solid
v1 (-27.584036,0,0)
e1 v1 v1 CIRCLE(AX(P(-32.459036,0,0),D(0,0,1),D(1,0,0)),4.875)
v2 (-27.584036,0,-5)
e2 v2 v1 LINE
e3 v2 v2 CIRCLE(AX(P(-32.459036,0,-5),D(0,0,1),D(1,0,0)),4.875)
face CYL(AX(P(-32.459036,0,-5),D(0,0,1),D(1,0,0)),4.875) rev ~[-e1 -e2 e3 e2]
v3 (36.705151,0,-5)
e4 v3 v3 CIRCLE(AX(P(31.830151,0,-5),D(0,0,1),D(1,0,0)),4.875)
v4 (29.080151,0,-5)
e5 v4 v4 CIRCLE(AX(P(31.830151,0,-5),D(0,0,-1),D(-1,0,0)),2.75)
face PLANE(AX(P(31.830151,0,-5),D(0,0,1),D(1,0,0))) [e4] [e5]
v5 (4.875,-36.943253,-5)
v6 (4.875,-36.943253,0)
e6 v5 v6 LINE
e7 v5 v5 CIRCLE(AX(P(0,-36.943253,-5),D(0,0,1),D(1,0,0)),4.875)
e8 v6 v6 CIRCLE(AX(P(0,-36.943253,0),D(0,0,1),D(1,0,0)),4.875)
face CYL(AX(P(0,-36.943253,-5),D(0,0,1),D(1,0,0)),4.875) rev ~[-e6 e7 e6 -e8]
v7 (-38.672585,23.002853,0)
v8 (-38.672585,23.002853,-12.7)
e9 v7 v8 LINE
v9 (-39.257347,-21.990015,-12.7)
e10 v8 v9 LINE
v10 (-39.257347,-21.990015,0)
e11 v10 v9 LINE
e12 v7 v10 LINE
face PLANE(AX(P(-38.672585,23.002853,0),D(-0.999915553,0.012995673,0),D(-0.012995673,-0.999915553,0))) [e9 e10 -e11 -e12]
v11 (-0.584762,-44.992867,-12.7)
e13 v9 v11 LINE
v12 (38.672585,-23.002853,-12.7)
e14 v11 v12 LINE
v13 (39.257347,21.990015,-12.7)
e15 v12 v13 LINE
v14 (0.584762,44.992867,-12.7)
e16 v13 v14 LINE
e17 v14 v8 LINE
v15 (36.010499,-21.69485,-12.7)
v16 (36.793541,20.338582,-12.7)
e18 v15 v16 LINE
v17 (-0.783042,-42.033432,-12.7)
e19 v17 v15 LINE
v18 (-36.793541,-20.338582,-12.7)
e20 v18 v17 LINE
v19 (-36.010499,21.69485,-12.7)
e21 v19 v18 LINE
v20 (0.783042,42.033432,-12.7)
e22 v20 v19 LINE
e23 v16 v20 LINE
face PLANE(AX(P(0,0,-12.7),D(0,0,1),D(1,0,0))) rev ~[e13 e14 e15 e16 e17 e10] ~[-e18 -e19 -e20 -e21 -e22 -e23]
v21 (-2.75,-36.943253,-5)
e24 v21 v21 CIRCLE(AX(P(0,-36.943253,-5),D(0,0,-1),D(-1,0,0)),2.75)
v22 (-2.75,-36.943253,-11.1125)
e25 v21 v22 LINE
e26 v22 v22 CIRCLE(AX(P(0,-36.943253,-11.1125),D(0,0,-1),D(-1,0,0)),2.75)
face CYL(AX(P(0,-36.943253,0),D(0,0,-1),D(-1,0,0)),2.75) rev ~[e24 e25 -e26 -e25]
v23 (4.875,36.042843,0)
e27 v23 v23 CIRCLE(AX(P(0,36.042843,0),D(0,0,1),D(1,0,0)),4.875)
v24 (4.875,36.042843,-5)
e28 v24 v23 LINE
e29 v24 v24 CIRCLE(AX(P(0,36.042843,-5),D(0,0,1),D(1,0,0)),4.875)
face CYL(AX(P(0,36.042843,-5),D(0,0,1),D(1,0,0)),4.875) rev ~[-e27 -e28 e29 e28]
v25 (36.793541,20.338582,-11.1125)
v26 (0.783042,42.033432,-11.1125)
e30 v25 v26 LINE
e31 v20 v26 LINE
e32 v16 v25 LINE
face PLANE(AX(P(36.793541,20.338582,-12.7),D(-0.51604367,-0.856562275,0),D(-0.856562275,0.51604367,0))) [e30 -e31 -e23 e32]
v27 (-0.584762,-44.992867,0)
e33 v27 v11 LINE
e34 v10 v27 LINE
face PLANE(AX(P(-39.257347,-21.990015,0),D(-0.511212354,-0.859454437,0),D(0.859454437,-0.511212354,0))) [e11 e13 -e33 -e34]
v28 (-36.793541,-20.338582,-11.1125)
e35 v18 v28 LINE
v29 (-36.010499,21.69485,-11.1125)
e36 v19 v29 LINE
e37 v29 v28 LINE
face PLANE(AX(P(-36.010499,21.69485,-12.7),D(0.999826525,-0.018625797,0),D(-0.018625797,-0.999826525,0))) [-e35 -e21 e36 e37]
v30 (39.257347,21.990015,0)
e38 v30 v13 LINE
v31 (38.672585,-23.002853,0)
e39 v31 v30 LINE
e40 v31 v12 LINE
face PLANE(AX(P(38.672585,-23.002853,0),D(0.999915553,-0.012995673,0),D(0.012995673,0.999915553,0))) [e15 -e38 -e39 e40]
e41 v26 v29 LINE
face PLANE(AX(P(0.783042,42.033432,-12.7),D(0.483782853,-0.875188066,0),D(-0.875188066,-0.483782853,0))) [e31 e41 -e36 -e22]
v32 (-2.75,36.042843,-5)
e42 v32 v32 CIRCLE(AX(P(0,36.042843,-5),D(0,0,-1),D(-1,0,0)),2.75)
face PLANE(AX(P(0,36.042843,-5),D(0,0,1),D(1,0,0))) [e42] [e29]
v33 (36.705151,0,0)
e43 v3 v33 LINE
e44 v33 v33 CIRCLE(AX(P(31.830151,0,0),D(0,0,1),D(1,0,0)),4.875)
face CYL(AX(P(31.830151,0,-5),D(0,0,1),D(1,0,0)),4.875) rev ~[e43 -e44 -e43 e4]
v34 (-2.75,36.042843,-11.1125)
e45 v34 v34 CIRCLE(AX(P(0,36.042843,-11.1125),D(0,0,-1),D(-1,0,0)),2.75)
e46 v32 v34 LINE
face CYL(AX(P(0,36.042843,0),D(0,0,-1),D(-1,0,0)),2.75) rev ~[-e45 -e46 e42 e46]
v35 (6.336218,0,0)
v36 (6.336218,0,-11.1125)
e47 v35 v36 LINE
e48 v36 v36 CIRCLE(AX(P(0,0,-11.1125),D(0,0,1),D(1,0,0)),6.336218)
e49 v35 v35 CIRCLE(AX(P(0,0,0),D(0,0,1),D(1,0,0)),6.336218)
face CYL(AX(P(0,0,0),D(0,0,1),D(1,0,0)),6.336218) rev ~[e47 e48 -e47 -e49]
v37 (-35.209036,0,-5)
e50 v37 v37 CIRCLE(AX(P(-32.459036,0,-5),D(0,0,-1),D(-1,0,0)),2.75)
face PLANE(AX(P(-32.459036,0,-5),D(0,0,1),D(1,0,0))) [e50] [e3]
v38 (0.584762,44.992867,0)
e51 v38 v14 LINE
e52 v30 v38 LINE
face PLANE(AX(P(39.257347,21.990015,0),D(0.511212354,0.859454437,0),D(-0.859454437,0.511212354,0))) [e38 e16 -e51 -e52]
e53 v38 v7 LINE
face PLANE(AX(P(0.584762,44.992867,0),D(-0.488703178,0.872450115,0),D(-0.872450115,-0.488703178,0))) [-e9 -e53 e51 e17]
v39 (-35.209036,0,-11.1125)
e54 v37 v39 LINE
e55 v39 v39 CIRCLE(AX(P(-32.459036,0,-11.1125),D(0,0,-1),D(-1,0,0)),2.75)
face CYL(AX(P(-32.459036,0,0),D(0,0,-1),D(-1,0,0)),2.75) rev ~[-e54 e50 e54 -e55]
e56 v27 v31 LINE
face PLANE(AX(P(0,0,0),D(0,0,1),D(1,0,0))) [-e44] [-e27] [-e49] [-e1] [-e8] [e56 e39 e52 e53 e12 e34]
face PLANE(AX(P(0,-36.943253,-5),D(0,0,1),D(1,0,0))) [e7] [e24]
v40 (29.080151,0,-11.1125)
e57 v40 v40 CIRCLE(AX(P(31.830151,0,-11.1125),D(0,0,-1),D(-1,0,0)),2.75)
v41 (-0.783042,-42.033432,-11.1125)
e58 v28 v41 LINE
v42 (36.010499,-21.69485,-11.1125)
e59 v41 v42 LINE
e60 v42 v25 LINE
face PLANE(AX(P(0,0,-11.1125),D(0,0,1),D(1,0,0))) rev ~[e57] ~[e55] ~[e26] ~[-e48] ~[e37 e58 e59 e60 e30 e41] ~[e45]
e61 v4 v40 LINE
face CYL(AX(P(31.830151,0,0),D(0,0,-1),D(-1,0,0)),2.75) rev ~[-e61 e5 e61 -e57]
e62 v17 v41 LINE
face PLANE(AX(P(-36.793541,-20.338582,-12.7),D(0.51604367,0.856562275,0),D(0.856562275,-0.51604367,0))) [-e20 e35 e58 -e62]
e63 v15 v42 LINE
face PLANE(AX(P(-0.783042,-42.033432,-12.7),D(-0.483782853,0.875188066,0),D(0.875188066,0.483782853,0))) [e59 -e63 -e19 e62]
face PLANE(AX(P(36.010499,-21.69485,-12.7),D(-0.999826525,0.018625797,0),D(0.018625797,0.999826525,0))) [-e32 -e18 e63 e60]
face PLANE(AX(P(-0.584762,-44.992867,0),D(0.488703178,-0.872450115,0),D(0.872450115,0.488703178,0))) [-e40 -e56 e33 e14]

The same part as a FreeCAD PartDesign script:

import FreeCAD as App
import Part
import Sketcher
Q = App.Units.Quantity


def add_polygon(sketch, points):
    """Adds a closed chain of lines whose ends are joined by coincident constraints."""
    first, n = sketch.GeometryCount, len(points)
    for a, b in zip(points, points[1:] + points[:1]):
        sketch.addGeometry(Part.LineSegment(App.Vector(*a, 0), App.Vector(*b, 0)), False)
    for i in range(n):
        sketch.addConstraint(Sketcher.Constraint("Coincident", first + i, 2, first + (i + 1) % n, 1))

doc = App.newDocument("Part")
body = doc.addObject("PartDesign::Body", "Body")

sketch1 = body.newObject("Sketcher::SketchObject", "Sketch")
sketch1.AttachmentSupport = (doc.getObject("XY_Plane"), [""])
sketch1.MapMode = "FlatFace"
add_polygon(sketch1, [(-0.584762, -44.992867), (38.672585, -23.002853), (39.257347, 21.990015), (0.584762, 44.992867), (-38.672585, 23.002853), (-39.257347, -21.990015)])
sketch1.addConstraint(Sketcher.Constraint("Symmetric", 0, 2, 3, 2, -1, 1))
sketch1.addConstraint(Sketcher.Constraint("Symmetric", 1, 2, 4, 2, -1, 1))
sketch1.addConstraint(Sketcher.Constraint("Symmetric", 2, 2, 5, 2, -1, 1))
sketch1.addConstraint(Sketcher.Constraint("Equal", 0, 1))
sketch1.addConstraint(Sketcher.Constraint("Equal", 1, 2))
sketch1.addConstraint(Sketcher.Constraint("DistanceY", 1, 2, 2, 2, 23.002852))
sketch1.addConstraint(Sketcher.Constraint("DistanceY", 0, 2, 2, 2, 67.99572))
sketch1.addConstraint(Sketcher.Constraint("DistanceY", 1, 2, 3, 2, 1.012838))
sketch1.addConstraint(Sketcher.Constraint("DistanceX", 3, 2, 0, 2, 77.34517))
pad1 = body.newObject("PartDesign::Pad", "Pad")
pad1.Profile = sketch1
pad1.Length = Q("0.5 in")
pad1.Reversed = True

sketch2 = body.newObject("Sketcher::SketchObject", "Sketch001")
sketch2.AttachmentSupport = (doc.getObject("XY_Plane"), [""])
sketch2.MapMode = "FlatFace"
sketch2.addGeometry(Part.Circle(App.Vector(0, -36.943253, 0), App.Vector(0, 0, 1), 2.75), False)
sketch2.addGeometry(Part.Circle(App.Vector(31.830151, 0, 0), App.Vector(0, 0, 1), 2.75), False)
sketch2.addGeometry(Part.Circle(App.Vector(0, 36.042843, 0), App.Vector(0, 0, 1), 2.75), False)
sketch2.addGeometry(Part.Circle(App.Vector(-32.459036, 0, 0), App.Vector(0, 0, 1), 2.75), False)
sketch2.addConstraint(Sketcher.Constraint("Equal", 0, 1))
sketch2.addConstraint(Sketcher.Constraint("Equal", 1, 2))
sketch2.addConstraint(Sketcher.Constraint("Equal", 2, 3))
sketch2.addConstraint(Sketcher.Constraint("PointOnObject", 0, 3, -2))
sketch2.addConstraint(Sketcher.Constraint("PointOnObject", 1, 3, -1))
sketch2.addConstraint(Sketcher.Constraint("PointOnObject", 2, 3, -2))
sketch2.addConstraint(Sketcher.Constraint("PointOnObject", 3, 3, -1))
sketch2.addConstraint(Sketcher.Constraint("Diameter", 0, 5.5))
sketch2.addConstraint(Sketcher.Constraint("DistanceX", -1, 1, 1, 3, 31.830151))
sketch2.addConstraint(Sketcher.Constraint("DistanceY", 0, 3, -1, 1, 36.943253))
sketch2.addConstraint(Sketcher.Constraint("DistanceY", -1, 1, 2, 3, 36.042843))
sketch2.addConstraint(Sketcher.Constraint("DistanceX", 3, 3, -1, 1, 32.459036))
doc.recompute()
hole = body.newObject("PartDesign::Hole", "Hole")
hole.Profile = sketch2
hole.ThreadType = "None"
hole.Diameter = 5.5
hole.DepthType = "ThroughAll"
hole.HoleCutType = "Counterbore"
hole.HoleCutDiameter = 9.75
hole.HoleCutDepth = 5

sketch3 = body.newObject("Sketcher::SketchObject", "Sketch002")
sketch3.AttachmentSupport = (doc.getObject("XY_Plane"), [""])
sketch3.MapMode = "FlatFace"
sketch3.addGeometry(Part.Circle(App.Vector(0, 0, 0), App.Vector(0, 0, 1), 6.336218), False)
sketch3.addConstraint(Sketcher.Constraint("Coincident", 0, 3, -1, 1))
sketch3.addConstraint(Sketcher.Constraint("Diameter", 0, 12.672436))
pocket1 = body.newObject("PartDesign::Pocket", "Pocket")
pocket1.Profile = sketch3
pocket1.Length = Q("1 in")

sketch4 = body.newObject("Sketcher::SketchObject", "Sketch003")
sketch4.AttachmentSupport = (doc.getObject("XY_Plane"), [""])
sketch4.MapMode = "FlatFace"
sketch4.AttachmentOffset = App.Placement(App.Vector(0, 0, -0.5 * 25.4), App.Rotation())
add_polygon(sketch4, [(36.793541, 20.338582), (0.783042, 42.033432), (-36.010499, 21.69485), (-36.793541, -20.338582), (-0.783042, -42.033432), (36.010499, -21.69485)])
sketch4.addConstraint(Sketcher.Constraint("Symmetric", 0, 2, 3, 2, -1, 1))
sketch4.addConstraint(Sketcher.Constraint("Symmetric", 1, 2, 4, 2, -1, 1))
sketch4.addConstraint(Sketcher.Constraint("Symmetric", 2, 2, 5, 2, -1, 1))
sketch4.addConstraint(Sketcher.Constraint("Equal", 0, 1))
sketch4.addConstraint(Sketcher.Constraint("Equal", 1, 2))
sketch4.addConstraint(Sketcher.Constraint("DistanceX", 1, 2, -1, 1, 36.010499))
sketch4.addConstraint(Sketcher.Constraint("DistanceX", 2, 2, 3, 2, 36.010499))
sketch4.addConstraint(Sketcher.Constraint("DistanceY", 4, 2, 1, 2, 43.3897))
sketch4.addConstraint(Sketcher.Constraint("DistanceY", -1, 1, 0, 2, 42.033432))
pocket2 = body.newObject("PartDesign::Pocket", "Pocket001")
pocket2.Profile = sketch4
pocket2.Length = Q("0.0625 in")
pocket2.Reversed = True

doc.recompute()
